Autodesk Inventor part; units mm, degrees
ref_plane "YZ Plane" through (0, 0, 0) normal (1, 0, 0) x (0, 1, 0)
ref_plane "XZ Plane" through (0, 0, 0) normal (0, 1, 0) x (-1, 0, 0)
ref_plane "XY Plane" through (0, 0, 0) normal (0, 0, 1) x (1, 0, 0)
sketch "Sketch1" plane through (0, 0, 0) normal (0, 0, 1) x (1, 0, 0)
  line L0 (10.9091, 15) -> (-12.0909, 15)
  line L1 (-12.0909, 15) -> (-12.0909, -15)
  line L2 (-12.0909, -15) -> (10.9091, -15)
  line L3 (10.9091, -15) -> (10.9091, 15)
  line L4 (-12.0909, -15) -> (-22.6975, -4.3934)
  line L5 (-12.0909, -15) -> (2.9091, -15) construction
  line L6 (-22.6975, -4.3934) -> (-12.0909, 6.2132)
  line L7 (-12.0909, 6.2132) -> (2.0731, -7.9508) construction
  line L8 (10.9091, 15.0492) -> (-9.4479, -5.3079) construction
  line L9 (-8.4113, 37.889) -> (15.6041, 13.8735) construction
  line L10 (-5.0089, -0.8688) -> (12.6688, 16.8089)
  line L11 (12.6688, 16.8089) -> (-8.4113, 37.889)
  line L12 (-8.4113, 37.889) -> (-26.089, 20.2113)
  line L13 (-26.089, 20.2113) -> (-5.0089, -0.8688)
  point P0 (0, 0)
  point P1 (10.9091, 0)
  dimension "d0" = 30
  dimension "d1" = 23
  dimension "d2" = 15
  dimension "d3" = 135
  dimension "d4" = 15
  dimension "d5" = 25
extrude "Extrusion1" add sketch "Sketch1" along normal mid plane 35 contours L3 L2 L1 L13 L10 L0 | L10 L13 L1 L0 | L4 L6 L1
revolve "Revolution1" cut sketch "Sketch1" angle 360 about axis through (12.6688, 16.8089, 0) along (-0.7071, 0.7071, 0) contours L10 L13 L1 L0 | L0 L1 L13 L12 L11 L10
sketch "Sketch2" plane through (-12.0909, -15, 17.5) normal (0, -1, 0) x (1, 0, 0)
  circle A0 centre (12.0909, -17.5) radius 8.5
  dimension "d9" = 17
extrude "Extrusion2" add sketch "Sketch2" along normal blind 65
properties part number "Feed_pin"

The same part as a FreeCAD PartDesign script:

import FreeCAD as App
import Part
import Sketcher
from FreeCAD import Vector
Q = App.Units.Quantity


def add_polygon(sketch, points):
    """Adds a closed chain of lines whose ends are joined by coincident constraints."""
    first, n = sketch.GeometryCount, len(points)
    for a, b in zip(points, points[1:] + points[:1]):
        sketch.addGeometry(Part.LineSegment(App.Vector(*a, 0), App.Vector(*b, 0)), False)
    for i in range(n):
        sketch.addConstraint(Sketcher.Constraint("Coincident", first + i, 2, first + (i + 1) % n, 1))

doc = App.newDocument("Part")
body = doc.addObject("PartDesign::Body", "Body")

sketch1 = doc.addObject("Sketcher::SketchObject", "Sketch")
body.addObject(sketch1)
sketch1.AttachmentSupport = (doc.XY_Plane, [""])
sketch1.MapMode = "FlatFace"
add_polygon(sketch1, [(11, -15), (11, 15), (-12, 15), (-12, 6), (-23, -4), (-12, -15)])
sketch1.addConstraint(Sketcher.Constraint("Vertical", 0))
sketch1.addConstraint(Sketcher.Constraint("Horizontal", 1))
sketch1.addConstraint(Sketcher.Constraint("Vertical", 2))
sketch1.addConstraint(Sketcher.Constraint("Horizontal", 5))
sketch1.addConstraint(Sketcher.Constraint("Symmetric", 1, 2, 4, 2, -1))
sketch1.addConstraint(Sketcher.Constraint("Perpendicular", 3, 4))
sketch1.addConstraint(Sketcher.Constraint("Equal", 3, 4))
sketch1.addConstraint(Sketcher.Constraint("DistanceX", 1, 2, 1, 1, Q("23 mm")))
sketch1.addConstraint(Sketcher.Constraint("DistanceY", 0, 1, 0, 2, Q("30 mm")))
sketch1.addConstraint(Sketcher.Constraint("Distance", 3, Q("15 mm")))
sketch1.addConstraint(Sketcher.Constraint("DistanceX", -1, 1, 0, 2, Q("10.909 mm")))
pad1 = doc.addObject("PartDesign::Pad", "Pad")
body.addObject(pad1)
pad1.Profile = sketch1
pad1.Length = 35
pad1.Midplane = True

sketch2 = doc.addObject("Sketcher::SketchObject", "Sketch001")
body.addObject(sketch2)
sketch2.AttachmentSupport = (doc.XY_Plane, [""])
sketch2.MapMode = "FlatFace"
add_polygon(sketch2, [(-5, -1), (13, 17), (-8, 38), (-26, 20)])
sketch2.addGeometry(Part.LineSegment(Vector(13, 17, 0), Vector(-8, 38, 0)), True)
sketch2.addConstraint(Sketcher.Constraint("Coincident", 4, 1, 0, 2))
sketch2.addConstraint(Sketcher.Constraint("Coincident", 4, 2, 1, 2))
sketch2.addConstraint(Sketcher.Constraint("Perpendicular", 0, 1))
sketch2.addConstraint(Sketcher.Constraint("Perpendicular", 1, 2))
sketch2.addConstraint(Sketcher.Constraint("Perpendicular", 2, 3))
sketch2.addConstraint(Sketcher.Constraint("Angle", 1, Q("135 deg")))
sketch2.addConstraint(Sketcher.Constraint("Distance", 0, Q("25 mm")))
sketch2.addConstraint(Sketcher.Constraint("DistanceX", 1, 2, 0, 2, Q("21.08 mm")))
sketch2.addConstraint(Sketcher.Constraint("DistanceY", -1, 1, 0, 2, Q("16.809 mm")))
sketch2.addConstraint(Sketcher.Constraint("DistanceX", 2, 2, -1, 1, Q("26.089 mm")))
groove = doc.addObject("PartDesign::Groove", "Groove")
body.addObject(groove)
groove.Profile = sketch2
groove.ReferenceAxis = (sketch2, ["Axis0"])
groove.Angle = 360

sketch3 = doc.addObject("Sketcher::SketchObject", "Sketch002")
body.addObject(sketch3)
sketch3.AttachmentSupport = (doc.XZ_Plane, [""])
sketch3.MapMode = "FlatFace"
sketch3.AttachmentOffset = App.Placement(Vector(0, 0, 15), App.Rotation())
sketch3.addGeometry(Part.Circle(Vector(0, 0, 0), Vector(0, 0, 1), 8), False)
sketch3.addConstraint(Sketcher.Constraint("Coincident", 0, 3, -1, 1))
sketch3.addConstraint(Sketcher.Constraint("Diameter", 0, Q("17 mm")))
pad2 = doc.addObject("PartDesign::Pad", "Pad001")
body.addObject(pad2)
pad2.Profile = sketch3
pad2.Length = 65

doc.recompute()
